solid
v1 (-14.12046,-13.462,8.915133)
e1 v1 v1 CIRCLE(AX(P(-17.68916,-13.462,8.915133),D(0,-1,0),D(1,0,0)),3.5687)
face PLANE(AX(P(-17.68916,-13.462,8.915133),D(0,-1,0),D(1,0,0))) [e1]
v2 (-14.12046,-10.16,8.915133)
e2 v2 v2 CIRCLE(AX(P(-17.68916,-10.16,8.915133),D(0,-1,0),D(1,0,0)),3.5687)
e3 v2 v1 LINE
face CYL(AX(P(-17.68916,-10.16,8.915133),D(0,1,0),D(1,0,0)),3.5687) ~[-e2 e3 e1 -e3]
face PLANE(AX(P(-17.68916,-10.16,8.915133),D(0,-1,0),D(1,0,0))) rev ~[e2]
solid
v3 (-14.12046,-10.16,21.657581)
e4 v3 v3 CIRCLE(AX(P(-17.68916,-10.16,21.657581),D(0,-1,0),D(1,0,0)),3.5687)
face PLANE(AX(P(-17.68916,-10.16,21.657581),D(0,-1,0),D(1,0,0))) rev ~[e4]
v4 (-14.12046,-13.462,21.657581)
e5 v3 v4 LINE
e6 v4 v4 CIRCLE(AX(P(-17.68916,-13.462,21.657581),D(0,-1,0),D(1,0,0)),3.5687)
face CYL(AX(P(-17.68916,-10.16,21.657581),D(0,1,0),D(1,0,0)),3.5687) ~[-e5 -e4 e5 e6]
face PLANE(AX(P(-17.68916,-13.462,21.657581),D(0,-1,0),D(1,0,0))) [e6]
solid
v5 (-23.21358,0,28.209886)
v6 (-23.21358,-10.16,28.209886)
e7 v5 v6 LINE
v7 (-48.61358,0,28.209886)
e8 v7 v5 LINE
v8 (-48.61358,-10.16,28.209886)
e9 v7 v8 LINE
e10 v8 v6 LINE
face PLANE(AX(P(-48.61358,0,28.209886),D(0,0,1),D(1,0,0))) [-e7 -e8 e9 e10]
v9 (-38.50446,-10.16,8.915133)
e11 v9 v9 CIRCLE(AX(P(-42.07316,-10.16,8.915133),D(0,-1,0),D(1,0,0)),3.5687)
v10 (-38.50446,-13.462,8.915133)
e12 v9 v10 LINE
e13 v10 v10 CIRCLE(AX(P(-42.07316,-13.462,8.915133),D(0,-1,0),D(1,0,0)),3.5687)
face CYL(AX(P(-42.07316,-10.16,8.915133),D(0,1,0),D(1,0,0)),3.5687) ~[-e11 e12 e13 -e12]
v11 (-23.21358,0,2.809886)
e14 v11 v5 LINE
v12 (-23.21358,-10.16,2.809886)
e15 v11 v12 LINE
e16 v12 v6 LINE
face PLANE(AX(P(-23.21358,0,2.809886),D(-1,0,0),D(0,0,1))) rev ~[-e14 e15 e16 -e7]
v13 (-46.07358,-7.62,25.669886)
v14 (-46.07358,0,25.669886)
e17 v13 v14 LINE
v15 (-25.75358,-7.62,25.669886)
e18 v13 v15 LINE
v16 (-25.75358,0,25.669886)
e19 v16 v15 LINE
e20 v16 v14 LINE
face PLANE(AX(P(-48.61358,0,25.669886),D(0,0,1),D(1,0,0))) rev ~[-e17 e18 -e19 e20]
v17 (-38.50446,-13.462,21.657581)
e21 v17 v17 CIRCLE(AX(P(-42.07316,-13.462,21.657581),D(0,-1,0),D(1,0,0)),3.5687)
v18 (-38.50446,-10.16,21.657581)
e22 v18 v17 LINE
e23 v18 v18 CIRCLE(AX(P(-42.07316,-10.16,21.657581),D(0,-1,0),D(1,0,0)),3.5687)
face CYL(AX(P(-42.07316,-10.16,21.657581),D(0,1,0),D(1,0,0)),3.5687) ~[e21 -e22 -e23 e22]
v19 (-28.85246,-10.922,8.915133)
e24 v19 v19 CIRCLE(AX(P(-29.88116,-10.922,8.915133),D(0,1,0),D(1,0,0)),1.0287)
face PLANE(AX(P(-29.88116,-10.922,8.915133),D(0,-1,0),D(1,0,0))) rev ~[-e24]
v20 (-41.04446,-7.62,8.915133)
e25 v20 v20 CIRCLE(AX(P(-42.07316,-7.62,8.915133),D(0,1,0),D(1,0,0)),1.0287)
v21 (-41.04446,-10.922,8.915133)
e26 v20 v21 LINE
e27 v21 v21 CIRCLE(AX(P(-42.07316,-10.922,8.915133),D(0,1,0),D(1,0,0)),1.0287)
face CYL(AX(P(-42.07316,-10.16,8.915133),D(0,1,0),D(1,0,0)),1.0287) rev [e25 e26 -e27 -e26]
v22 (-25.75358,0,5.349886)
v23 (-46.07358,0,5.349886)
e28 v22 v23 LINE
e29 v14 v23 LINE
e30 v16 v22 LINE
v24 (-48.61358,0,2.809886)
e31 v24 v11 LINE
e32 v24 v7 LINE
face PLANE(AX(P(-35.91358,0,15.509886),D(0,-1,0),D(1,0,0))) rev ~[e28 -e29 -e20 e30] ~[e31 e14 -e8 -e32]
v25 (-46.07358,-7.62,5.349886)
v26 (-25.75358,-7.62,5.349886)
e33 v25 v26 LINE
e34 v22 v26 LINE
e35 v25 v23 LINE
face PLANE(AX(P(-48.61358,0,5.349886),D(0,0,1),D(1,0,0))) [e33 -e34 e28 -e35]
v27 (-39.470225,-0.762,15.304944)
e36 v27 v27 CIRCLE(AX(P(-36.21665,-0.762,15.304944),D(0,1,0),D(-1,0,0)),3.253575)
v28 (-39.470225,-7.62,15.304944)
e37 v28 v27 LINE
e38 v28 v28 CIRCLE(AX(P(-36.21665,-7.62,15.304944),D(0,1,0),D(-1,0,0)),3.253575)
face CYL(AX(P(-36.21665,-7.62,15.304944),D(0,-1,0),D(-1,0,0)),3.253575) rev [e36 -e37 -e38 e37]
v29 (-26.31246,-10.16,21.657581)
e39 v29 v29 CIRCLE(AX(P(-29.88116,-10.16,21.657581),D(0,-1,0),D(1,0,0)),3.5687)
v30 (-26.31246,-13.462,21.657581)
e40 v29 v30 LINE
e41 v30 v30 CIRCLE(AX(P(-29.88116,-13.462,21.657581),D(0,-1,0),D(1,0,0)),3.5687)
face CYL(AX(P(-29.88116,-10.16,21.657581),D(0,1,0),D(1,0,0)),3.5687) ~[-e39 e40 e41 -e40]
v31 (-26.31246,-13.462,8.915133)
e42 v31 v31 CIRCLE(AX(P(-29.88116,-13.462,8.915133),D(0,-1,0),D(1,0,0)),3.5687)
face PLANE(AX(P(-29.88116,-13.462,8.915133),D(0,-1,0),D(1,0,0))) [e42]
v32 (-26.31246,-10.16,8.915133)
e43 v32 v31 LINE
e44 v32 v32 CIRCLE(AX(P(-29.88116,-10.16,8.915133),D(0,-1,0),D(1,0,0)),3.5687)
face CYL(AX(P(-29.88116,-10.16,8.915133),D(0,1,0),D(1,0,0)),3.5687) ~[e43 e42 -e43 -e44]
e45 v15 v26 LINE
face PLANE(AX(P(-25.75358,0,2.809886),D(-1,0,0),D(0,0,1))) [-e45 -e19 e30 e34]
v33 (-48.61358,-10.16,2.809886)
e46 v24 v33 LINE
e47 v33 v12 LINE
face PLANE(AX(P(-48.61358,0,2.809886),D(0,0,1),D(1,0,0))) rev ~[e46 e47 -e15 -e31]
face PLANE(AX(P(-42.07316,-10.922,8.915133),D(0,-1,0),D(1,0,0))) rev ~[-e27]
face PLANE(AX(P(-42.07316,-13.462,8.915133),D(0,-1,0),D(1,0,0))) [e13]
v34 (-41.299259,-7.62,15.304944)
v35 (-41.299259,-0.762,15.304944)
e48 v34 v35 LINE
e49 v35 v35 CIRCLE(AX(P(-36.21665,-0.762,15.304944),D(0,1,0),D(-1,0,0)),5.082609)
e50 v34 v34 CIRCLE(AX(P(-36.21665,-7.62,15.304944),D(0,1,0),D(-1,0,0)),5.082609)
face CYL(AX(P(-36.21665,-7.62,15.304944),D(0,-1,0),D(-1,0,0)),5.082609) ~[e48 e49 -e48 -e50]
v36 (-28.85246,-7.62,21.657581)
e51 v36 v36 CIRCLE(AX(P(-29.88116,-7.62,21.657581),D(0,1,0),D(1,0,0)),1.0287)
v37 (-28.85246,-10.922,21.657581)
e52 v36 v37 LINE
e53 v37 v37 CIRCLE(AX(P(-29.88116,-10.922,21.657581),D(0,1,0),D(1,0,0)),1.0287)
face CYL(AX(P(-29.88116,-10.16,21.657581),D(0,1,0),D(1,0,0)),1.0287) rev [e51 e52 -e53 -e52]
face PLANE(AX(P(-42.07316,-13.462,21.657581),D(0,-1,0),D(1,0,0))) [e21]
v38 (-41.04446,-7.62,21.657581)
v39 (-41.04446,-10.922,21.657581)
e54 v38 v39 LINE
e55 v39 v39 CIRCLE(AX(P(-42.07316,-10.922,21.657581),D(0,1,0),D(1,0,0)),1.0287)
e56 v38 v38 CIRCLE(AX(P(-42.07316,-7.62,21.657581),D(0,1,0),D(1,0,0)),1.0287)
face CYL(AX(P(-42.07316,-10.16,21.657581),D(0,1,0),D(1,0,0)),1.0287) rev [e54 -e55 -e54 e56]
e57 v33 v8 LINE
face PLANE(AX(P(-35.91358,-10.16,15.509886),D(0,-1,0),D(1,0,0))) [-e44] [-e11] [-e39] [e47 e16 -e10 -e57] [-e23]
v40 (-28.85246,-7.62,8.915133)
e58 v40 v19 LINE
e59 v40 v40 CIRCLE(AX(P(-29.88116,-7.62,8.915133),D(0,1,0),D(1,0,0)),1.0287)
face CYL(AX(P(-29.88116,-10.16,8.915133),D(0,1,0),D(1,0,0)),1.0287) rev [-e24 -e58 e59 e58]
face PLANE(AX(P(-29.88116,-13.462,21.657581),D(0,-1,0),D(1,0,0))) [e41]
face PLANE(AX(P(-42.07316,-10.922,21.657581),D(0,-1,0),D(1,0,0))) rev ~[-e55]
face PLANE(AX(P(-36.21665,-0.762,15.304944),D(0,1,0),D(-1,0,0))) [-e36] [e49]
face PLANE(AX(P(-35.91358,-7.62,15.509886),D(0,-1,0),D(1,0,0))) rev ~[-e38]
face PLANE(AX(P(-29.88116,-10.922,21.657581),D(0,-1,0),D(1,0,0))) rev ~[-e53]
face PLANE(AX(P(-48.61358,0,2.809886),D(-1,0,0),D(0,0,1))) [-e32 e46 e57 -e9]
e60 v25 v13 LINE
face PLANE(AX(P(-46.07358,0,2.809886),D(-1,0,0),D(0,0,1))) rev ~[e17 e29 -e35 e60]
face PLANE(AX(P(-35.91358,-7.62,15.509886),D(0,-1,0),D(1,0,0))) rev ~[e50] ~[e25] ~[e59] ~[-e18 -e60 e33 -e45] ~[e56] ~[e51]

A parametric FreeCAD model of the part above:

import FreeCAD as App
import Part
import Sketcher
Q = App.Units.Quantity


def faces_at(feature, points):
    """Names of the faces that lie closest to the given points."""
    faces = feature.Shape.Faces
    near = lambda p: min(range(len(faces)), key=lambda i: faces[i].distToShape(Part.Vertex(*p))[0])
    return sorted({f"Face{near(p) + 1}" for p in points})

doc = App.newDocument("Part")
params = doc.addObject("Spreadsheet::Sheet", "Params")
for row, (alias, value) in enumerate([
    ("sketch1_width", "1 in"),
    ("pad1_length", "0.4 in"),
    ("sketch2_diameter", "0.281 in"),
    ("pad2_length", "0.13 in"),
    ("thickness_wall", "0.1 in"),
    ("pad3_length", "0.27 in"),
    ("sketch4_diameter", "0.281 in"),
    ("pad4_length", "0.13 in"),
    ("sketch5_diameter", "0.281 in"),
    ("pad5_length", "0.13 in"),
], start=1):
    params.set(f"A{row}", alias)
    params.set(f"B{row}", "=" + value)
    params.setAlias(f"B{row}", alias)

body = doc.addObject("PartDesign::Body", "Body")

# Sketch on XZ plane
sketch1 = body.newObject("Sketcher::SketchObject", "Sketch")
sketch1.AttachmentSupport = (doc.getObject("XZ_Plane"), [""])
sketch1.MapMode = "FlatFace"
sketch1.addGeometry([
    Part.LineSegment(App.Vector(-49, 28, 0), App.Vector(-49, 3, 0)),
    Part.LineSegment(App.Vector(-49, 3, 0), App.Vector(-23, 3, 0)),
    Part.LineSegment(App.Vector(-23, 3, 0), App.Vector(-23, 28, 0)),
    Part.LineSegment(App.Vector(-23, 28, 0), App.Vector(-49, 28, 0)),
], False)
sketch1.addConstraint([
    Sketcher.Constraint("Coincident", 0, 2, 1, 1),
    Sketcher.Constraint("Coincident", 1, 2, 2, 1),
    Sketcher.Constraint("Coincident", 2, 2, 3, 1),
    Sketcher.Constraint("Coincident", 3, 2, 0, 1),
    Sketcher.Constraint("Vertical", 0),
    Sketcher.Constraint("Horizontal", 1),
    Sketcher.Constraint("Vertical", 2),
    Sketcher.Constraint("Horizontal", 3),
    Sketcher.Constraint("Equal", 3, 0),
    Sketcher.Constraint("DistanceX", 1, 1, 1, 2, Q("1 in")),
    Sketcher.Constraint("DistanceX", 0, 2, -1, 1, Q("48.61358 mm")),
    Sketcher.Constraint("DistanceY", -1, 1, 0, 2, Q("2.809886 mm")),
])
sketch1.setExpression("Constraints[9]", "Params.sketch1_width")
pad1 = body.newObject("PartDesign::Pad", "Pad")
pad1.Profile = sketch1
pad1.setExpression("Length", "Params.pad1_length")

# Sketch on XZ plane
sketch2 = body.newObject("Sketcher::SketchObject", "Sketch001")
sketch2.AttachmentSupport = (doc.getObject("XZ_Plane"), [""])
sketch2.MapMode = "FlatFace"
sketch2.AttachmentOffset = App.Placement(App.Vector(0, 0, 0.4 * 25.4), App.Rotation())
sketch2.addGeometry([
    Part.Circle(App.Vector(-42.1, 21.7, 0), App.Vector(0, 0, 1), 3.6),
    Part.Circle(App.Vector(-42.1, 8.9, 0), App.Vector(0, 0, 1), 3.6),
    Part.Circle(App.Vector(-29.9, 21.7, 0), App.Vector(0, 0, 1), 3.6),
    Part.Circle(App.Vector(-29.9, 8.9, 0), App.Vector(0, 0, 1), 3.6),
], False)
sketch2.addConstraint([
    Sketcher.Constraint("Equal", 0, 1),
    Sketcher.Constraint("Equal", 1, 2),
    Sketcher.Constraint("Equal", 2, 3),
    Sketcher.Constraint("Horizontal", 0, 3, 2, 3),
    Sketcher.Constraint("Horizontal", 1, 3, 3, 3),
    Sketcher.Constraint("Vertical", 0, 3, 1, 3),
    Sketcher.Constraint("Vertical", 2, 3, 3, 3),
    Sketcher.Constraint("Diameter", 0, Q("0.281 in")),
    Sketcher.Constraint("DistanceX", 0, 3, 2, 3, Q("0.48 in")),
    Sketcher.Constraint("DistanceX", 0, 3, -1, 1, Q("42.07316 mm")),
    Sketcher.Constraint("DistanceY", -1, 1, 0, 3, Q("21.657581 mm")),
    Sketcher.Constraint("DistanceY", -1, 1, 1, 3, Q("8.915133 mm")),
])
sketch2.setExpression("Constraints[7]", "Params.sketch2_diameter")
pad2 = body.newObject("PartDesign::Pad", "Pad001")
pad2.Profile = sketch2
pad2.setExpression("Length", "Params.pad2_length")
doc.recompute()

thickness = body.newObject("PartDesign::Thickness", "Thickness")
thickness.Base = (pad2, faces_at(pad2, [(-35.914, 0, 15.51)]))
thickness.setExpression("Value", "Params.thickness_wall")
thickness.Reversed = True
thickness.Join = "Intersection"

# Sketch on XZ plane
sketch3 = body.newObject("Sketcher::SketchObject", "Sketch002")
sketch3.AttachmentSupport = (doc.getObject("XZ_Plane"), [""])
sketch3.MapMode = "FlatFace"
sketch3.AttachmentOffset = App.Placement(App.Vector(0, 0, 0.3 * 25.4), App.Rotation())
sketch3.addGeometry([
    Part.Circle(App.Vector(-36.2, 15.3, 0), App.Vector(0, 0, 1), 5.1),
    Part.Circle(App.Vector(-36.2, 15.3, 0), App.Vector(0, 0, 1), 3.3),
], False)
sketch3.addConstraint([
    Sketcher.Constraint("Coincident", 1, 3, 0, 3),
    Sketcher.Constraint("Diameter", 0, Q("10.165218 mm")),
    Sketcher.Constraint("Diameter", 1, Q("6.50715 mm")),
    Sketcher.Constraint("DistanceX", 0, 3, -1, 1, Q("36.21665 mm")),
    Sketcher.Constraint("DistanceY", -1, 1, 0, 3, Q("15.304944 mm")),
])
pad3 = body.newObject("PartDesign::Pad", "Pad002")
pad3.Profile = sketch3
pad3.setExpression("Length", "Params.pad3_length")
pad3.Reversed = True
body2 = doc.addObject("PartDesign::Body", "Body001")

# Sketch on XZ plane
sketch4 = body2.newObject("Sketcher::SketchObject", "Sketch003")
sketch4.AttachmentSupport = (doc.getObject("XZ_Plane001"), [""])
sketch4.MapMode = "FlatFace"
sketch4.AttachmentOffset = App.Placement(App.Vector(0, 0, 0.4 * 25.4), App.Rotation())
sketch4.addGeometry(Part.Circle(App.Vector(-17.7, 21.7, 0), App.Vector(0, 0, 1), 3.6), False)
sketch4.addConstraint([
    Sketcher.Constraint("Diameter", 0, Q("0.281 in")),
    Sketcher.Constraint("DistanceX", 0, 3, -1, 1, Q("17.68916 mm")),
    Sketcher.Constraint("DistanceY", -1, 1, 0, 3, Q("21.657581 mm")),
])
sketch4.setExpression("Constraints[0]", "Params.sketch4_diameter")
pad4 = body2.newObject("PartDesign::Pad", "Pad003")
pad4.Profile = sketch4
pad4.setExpression("Length", "Params.pad4_length")
body3 = doc.addObject("PartDesign::Body", "Body002")

# Sketch on XZ plane
sketch5 = body3.newObject("Sketcher::SketchObject", "Sketch004")
sketch5.AttachmentSupport = (doc.getObject("XZ_Plane002"), [""])
sketch5.MapMode = "FlatFace"
sketch5.AttachmentOffset = App.Placement(App.Vector(0, 0, 0.4 * 25.4), App.Rotation())
sketch5.addGeometry(Part.Circle(App.Vector(-17.7, 8.9, 0), App.Vector(0, 0, 1), 3.6), False)
sketch5.addConstraint([
    Sketcher.Constraint("Diameter", 0, Q("0.281 in")),
    Sketcher.Constraint("DistanceX", 0, 3, -1, 1, Q("17.68916 mm")),
    Sketcher.Constraint("DistanceY", -1, 1, 0, 3, Q("8.915133 mm")),
])
sketch5.setExpression("Constraints[0]", "Params.sketch5_diameter")
pad5 = body3.newObject("PartDesign::Pad", "Pad004")
pad5.Profile = sketch5
pad5.setExpression("Length", "Params.pad5_length")

doc.recompute()
